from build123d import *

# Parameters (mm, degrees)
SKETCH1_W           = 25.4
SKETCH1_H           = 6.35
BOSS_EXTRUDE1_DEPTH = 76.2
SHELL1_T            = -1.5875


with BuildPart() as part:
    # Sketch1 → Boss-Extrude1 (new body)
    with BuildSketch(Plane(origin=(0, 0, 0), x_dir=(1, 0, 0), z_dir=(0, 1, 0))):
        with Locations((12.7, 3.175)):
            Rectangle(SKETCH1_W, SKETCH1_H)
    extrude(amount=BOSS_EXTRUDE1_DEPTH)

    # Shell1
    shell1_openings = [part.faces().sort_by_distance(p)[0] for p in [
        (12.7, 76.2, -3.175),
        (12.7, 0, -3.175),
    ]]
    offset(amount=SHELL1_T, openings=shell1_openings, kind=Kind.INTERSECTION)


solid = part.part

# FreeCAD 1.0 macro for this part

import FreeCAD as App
import Part
import Sketcher
from FreeCAD import Vector
Q = App.Units.Quantity


def faces_at(feature, points):
    """Names of the faces that lie closest to the given points."""
    faces = feature.Shape.Faces
    near = lambda p: min(range(len(faces)), key=lambda i: faces[i].distToShape(Part.Vertex(*p))[0])
    return sorted({f"Face{near(p) + 1}" for p in points})

doc = App.newDocument("Part")
body = doc.addObject("PartDesign::Body", "Body")

sketch1 = doc.addObject("Sketcher::SketchObject", "Sketch")
body.addObject(sketch1)
sketch1.AttachmentSupport = (doc.XZ_Plane, [""])
sketch1.MapMode = "FlatFace"
sketch1.addGeometry([
    Part.LineSegment(Vector(0, -6, 0), Vector(0, 0, 0)),
    Part.LineSegment(Vector(0, 0, 0), Vector(25, 0, 0)),
    Part.LineSegment(Vector(25, 0, 0), Vector(25, -6, 0)),
    Part.LineSegment(Vector(25, -6, 0), Vector(0, -6, 0)),
], False)
sketch1.addConstraint([
    Sketcher.Constraint("Coincident", 0, 2, 1, 1),
    Sketcher.Constraint("Coincident", 1, 2, 2, 1),
    Sketcher.Constraint("Coincident", 2, 2, 3, 1),
    Sketcher.Constraint("Coincident", 3, 2, 0, 1),
    Sketcher.Constraint("Vertical", 0),
    Sketcher.Constraint("Horizontal", 1),
    Sketcher.Constraint("Vertical", 2),
    Sketcher.Constraint("Horizontal", 3),
    Sketcher.Constraint("Coincident", 0, 2, -1, 1),
    Sketcher.Constraint("DistanceX", 1, 1, 1, 2, Q("1 in")),
    Sketcher.Constraint("DistanceY", 0, 1, 0, 2, Q("0.25 in")),
])
pad1 = doc.addObject("PartDesign::Pad", "Pad")
body.addObject(pad1)
pad1.Profile = sketch1
pad1.Length = Q("3 in")
pad1.Reversed = True
doc.recompute()

thickness = doc.addObject("PartDesign::Thickness", "Thickness")
body.addObject(thickness)
thickness.Base = (pad1, faces_at(pad1, [(12.7, 76.2, -3.175), (12.7, 0, -3.175)]))
thickness.Value = Q("0.0625 in")
thickness.Reversed = True
thickness.Join = "Intersection"

doc.recompute()
